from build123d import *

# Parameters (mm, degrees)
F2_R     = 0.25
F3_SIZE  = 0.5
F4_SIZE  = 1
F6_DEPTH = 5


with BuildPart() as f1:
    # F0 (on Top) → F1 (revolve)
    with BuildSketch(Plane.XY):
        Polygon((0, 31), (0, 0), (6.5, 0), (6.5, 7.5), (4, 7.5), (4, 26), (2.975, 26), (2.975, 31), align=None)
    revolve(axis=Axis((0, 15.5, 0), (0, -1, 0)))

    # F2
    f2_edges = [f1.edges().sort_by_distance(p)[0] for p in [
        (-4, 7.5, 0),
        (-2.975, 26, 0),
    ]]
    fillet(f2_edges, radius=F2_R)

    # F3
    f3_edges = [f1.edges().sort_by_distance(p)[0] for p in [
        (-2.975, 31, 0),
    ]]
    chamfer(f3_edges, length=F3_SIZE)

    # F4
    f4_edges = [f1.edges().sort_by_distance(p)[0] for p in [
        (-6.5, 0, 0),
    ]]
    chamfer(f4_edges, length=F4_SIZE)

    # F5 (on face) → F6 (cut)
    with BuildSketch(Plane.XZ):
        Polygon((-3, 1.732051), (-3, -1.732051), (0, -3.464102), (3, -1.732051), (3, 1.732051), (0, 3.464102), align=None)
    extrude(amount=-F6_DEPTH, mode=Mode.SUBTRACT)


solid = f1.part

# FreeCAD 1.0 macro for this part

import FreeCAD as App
import Part
import Sketcher

V = App.Vector
Q = App.Units.Quantity


def edges_at(feature, points):
    """Names of the edges that pass closest to the given points."""
    edges = feature.Shape.Edges
    near = lambda p: min(range(len(edges)), key=lambda i: edges[i].distToShape(Part.Vertex(*p))[0])
    return sorted({f"Edge{near(p) + 1}" for p in points})

doc = App.newDocument("Part")
body = doc.addObject("PartDesign::Body", "Body")

sketch1 = body.newObject("Sketcher::SketchObject", "Sketch")
sketch1.AttachmentSupport = (doc.getObject("XY_Plane"), [""])
sketch1.MapMode = "FlatFace"
sketch1.addGeometry([
    Part.LineSegment(V(0, 31, 0), V(0, 0, 0)),
    Part.LineSegment(V(0, 0, 0), V(6.5, 0, 0)),
    Part.LineSegment(V(6.5, 0, 0), V(6.5, 7.5, 0)),
    Part.LineSegment(V(6.5, 7.5, 0), V(4, 7.5, 0)),
    Part.LineSegment(V(4, 7.5, 0), V(4, 26, 0)),
    Part.LineSegment(V(4, 26, 0), V(3, 26, 0)),
    Part.LineSegment(V(3, 26, 0), V(3, 31, 0)),
    Part.LineSegment(V(3, 31, 0), V(0, 31, 0)),
], False)
sketch1.addConstraint([
    Sketcher.Constraint("Coincident", 0, 2, 1, 1),
    Sketcher.Constraint("Coincident", 1, 2, 2, 1),
    Sketcher.Constraint("Coincident", 2, 2, 3, 1),
    Sketcher.Constraint("Coincident", 3, 2, 4, 1),
    Sketcher.Constraint("Coincident", 4, 2, 5, 1),
    Sketcher.Constraint("Coincident", 5, 2, 6, 1),
    Sketcher.Constraint("Coincident", 6, 2, 7, 1),
    Sketcher.Constraint("Coincident", 7, 2, 0, 1),
    Sketcher.Constraint("Vertical", 0),
    Sketcher.Constraint("Horizontal", 1),
    Sketcher.Constraint("Vertical", 2),
    Sketcher.Constraint("Horizontal", 3),
    Sketcher.Constraint("Vertical", 4),
    Sketcher.Constraint("Horizontal", 5),
    Sketcher.Constraint("Vertical", 6),
    Sketcher.Constraint("Horizontal", 7),
    Sketcher.Constraint("Coincident", 0, 2, -1, 1),
    Sketcher.Constraint("DistanceY", 0, 2, 0, 1, 31.0),
    Sketcher.Constraint("DistanceY", 6, 1, 6, 2, 5.0),
    Sketcher.Constraint("DistanceX", 1, 1, 1, 2, 6.5),
    Sketcher.Constraint("DistanceX", 3, 2, 3, 1, 2.5),
    Sketcher.Constraint("DistanceY", 2, 1, 2, 2, 7.5),
    Sketcher.Constraint("DistanceX", 5, 2, 5, 1, 1.025),
])
revolution = body.newObject("PartDesign::Revolution", "Revolution")
revolution.Profile = sketch1
revolution.ReferenceAxis = (sketch1, ["V_Axis"])
revolution.Angle = 360
doc.recompute()

fillet = body.newObject("PartDesign::Fillet", "Fillet")
fillet.Base = (revolution, edges_at(revolution, [(-4, 7.5, 0), (-2.975, 26, 0)]))
fillet.Radius = 0.25
doc.recompute()

chamfer = body.newObject("PartDesign::Chamfer", "Chamfer")
chamfer.Base = (fillet, edges_at(fillet, [(-2.975, 31, 0)]))
chamfer.Size = 0.5
doc.recompute()

chamfer2 = body.newObject("PartDesign::Chamfer", "Chamfer001")
chamfer2.Base = (chamfer, edges_at(chamfer, [(-6.5, 0, 0)]))
chamfer2.Size = 1

sketch2 = body.newObject("Sketcher::SketchObject", "Sketch001")
sketch2.AttachmentSupport = (doc.getObject("XZ_Plane"), [""])
sketch2.MapMode = "FlatFace"
sketch2.addGeometry([
    Part.LineSegment(V(-3, 1.7, 0), V(-3, -1.7, 0)),
    Part.LineSegment(V(-3, -1.7, 0), V(0, -3.5, 0)),
    Part.LineSegment(V(0, -3.5, 0), V(3, -1.7, 0)),
    Part.LineSegment(V(3, -1.7, 0), V(3, 1.7, 0)),
    Part.LineSegment(V(3, 1.7, 0), V(0, 3.5, 0)),
    Part.LineSegment(V(0, 3.5, 0), V(-3, 1.7, 0)),
], False)
sketch2.addConstraint([
    Sketcher.Constraint("Coincident", 0, 2, 1, 1),
    Sketcher.Constraint("Coincident", 1, 2, 2, 1),
    Sketcher.Constraint("Coincident", 2, 2, 3, 1),
    Sketcher.Constraint("Coincident", 3, 2, 4, 1),
    Sketcher.Constraint("Coincident", 4, 2, 5, 1),
    Sketcher.Constraint("Coincident", 5, 2, 0, 1),
    Sketcher.Constraint("Vertical", 0),
    Sketcher.Constraint("Vertical", 3),
    Sketcher.Constraint("Symmetric", 0, 2, 3, 2, -1, 1),
    Sketcher.Constraint("Symmetric", 1, 2, 4, 2, -1, 1),
    Sketcher.Constraint("PointOnObject", 1, 2, -2),
    Sketcher.Constraint("Parallel", 2, 5),
    Sketcher.Constraint("Horizontal", 0, 2, 2, 2),
    Sketcher.Constraint("Angle", 1, Q("-30.000003 deg")),
    Sketcher.Constraint("DistanceX", 0, 2, -1, 1, 3.0),
    Sketcher.Constraint("DistanceY", 0, 2, 0, 1, 3.464102),
])
pocket1 = body.newObject("PartDesign::Pocket", "Pocket")
pocket1.Profile = sketch2
pocket1.Length = 5

doc.recompute()
